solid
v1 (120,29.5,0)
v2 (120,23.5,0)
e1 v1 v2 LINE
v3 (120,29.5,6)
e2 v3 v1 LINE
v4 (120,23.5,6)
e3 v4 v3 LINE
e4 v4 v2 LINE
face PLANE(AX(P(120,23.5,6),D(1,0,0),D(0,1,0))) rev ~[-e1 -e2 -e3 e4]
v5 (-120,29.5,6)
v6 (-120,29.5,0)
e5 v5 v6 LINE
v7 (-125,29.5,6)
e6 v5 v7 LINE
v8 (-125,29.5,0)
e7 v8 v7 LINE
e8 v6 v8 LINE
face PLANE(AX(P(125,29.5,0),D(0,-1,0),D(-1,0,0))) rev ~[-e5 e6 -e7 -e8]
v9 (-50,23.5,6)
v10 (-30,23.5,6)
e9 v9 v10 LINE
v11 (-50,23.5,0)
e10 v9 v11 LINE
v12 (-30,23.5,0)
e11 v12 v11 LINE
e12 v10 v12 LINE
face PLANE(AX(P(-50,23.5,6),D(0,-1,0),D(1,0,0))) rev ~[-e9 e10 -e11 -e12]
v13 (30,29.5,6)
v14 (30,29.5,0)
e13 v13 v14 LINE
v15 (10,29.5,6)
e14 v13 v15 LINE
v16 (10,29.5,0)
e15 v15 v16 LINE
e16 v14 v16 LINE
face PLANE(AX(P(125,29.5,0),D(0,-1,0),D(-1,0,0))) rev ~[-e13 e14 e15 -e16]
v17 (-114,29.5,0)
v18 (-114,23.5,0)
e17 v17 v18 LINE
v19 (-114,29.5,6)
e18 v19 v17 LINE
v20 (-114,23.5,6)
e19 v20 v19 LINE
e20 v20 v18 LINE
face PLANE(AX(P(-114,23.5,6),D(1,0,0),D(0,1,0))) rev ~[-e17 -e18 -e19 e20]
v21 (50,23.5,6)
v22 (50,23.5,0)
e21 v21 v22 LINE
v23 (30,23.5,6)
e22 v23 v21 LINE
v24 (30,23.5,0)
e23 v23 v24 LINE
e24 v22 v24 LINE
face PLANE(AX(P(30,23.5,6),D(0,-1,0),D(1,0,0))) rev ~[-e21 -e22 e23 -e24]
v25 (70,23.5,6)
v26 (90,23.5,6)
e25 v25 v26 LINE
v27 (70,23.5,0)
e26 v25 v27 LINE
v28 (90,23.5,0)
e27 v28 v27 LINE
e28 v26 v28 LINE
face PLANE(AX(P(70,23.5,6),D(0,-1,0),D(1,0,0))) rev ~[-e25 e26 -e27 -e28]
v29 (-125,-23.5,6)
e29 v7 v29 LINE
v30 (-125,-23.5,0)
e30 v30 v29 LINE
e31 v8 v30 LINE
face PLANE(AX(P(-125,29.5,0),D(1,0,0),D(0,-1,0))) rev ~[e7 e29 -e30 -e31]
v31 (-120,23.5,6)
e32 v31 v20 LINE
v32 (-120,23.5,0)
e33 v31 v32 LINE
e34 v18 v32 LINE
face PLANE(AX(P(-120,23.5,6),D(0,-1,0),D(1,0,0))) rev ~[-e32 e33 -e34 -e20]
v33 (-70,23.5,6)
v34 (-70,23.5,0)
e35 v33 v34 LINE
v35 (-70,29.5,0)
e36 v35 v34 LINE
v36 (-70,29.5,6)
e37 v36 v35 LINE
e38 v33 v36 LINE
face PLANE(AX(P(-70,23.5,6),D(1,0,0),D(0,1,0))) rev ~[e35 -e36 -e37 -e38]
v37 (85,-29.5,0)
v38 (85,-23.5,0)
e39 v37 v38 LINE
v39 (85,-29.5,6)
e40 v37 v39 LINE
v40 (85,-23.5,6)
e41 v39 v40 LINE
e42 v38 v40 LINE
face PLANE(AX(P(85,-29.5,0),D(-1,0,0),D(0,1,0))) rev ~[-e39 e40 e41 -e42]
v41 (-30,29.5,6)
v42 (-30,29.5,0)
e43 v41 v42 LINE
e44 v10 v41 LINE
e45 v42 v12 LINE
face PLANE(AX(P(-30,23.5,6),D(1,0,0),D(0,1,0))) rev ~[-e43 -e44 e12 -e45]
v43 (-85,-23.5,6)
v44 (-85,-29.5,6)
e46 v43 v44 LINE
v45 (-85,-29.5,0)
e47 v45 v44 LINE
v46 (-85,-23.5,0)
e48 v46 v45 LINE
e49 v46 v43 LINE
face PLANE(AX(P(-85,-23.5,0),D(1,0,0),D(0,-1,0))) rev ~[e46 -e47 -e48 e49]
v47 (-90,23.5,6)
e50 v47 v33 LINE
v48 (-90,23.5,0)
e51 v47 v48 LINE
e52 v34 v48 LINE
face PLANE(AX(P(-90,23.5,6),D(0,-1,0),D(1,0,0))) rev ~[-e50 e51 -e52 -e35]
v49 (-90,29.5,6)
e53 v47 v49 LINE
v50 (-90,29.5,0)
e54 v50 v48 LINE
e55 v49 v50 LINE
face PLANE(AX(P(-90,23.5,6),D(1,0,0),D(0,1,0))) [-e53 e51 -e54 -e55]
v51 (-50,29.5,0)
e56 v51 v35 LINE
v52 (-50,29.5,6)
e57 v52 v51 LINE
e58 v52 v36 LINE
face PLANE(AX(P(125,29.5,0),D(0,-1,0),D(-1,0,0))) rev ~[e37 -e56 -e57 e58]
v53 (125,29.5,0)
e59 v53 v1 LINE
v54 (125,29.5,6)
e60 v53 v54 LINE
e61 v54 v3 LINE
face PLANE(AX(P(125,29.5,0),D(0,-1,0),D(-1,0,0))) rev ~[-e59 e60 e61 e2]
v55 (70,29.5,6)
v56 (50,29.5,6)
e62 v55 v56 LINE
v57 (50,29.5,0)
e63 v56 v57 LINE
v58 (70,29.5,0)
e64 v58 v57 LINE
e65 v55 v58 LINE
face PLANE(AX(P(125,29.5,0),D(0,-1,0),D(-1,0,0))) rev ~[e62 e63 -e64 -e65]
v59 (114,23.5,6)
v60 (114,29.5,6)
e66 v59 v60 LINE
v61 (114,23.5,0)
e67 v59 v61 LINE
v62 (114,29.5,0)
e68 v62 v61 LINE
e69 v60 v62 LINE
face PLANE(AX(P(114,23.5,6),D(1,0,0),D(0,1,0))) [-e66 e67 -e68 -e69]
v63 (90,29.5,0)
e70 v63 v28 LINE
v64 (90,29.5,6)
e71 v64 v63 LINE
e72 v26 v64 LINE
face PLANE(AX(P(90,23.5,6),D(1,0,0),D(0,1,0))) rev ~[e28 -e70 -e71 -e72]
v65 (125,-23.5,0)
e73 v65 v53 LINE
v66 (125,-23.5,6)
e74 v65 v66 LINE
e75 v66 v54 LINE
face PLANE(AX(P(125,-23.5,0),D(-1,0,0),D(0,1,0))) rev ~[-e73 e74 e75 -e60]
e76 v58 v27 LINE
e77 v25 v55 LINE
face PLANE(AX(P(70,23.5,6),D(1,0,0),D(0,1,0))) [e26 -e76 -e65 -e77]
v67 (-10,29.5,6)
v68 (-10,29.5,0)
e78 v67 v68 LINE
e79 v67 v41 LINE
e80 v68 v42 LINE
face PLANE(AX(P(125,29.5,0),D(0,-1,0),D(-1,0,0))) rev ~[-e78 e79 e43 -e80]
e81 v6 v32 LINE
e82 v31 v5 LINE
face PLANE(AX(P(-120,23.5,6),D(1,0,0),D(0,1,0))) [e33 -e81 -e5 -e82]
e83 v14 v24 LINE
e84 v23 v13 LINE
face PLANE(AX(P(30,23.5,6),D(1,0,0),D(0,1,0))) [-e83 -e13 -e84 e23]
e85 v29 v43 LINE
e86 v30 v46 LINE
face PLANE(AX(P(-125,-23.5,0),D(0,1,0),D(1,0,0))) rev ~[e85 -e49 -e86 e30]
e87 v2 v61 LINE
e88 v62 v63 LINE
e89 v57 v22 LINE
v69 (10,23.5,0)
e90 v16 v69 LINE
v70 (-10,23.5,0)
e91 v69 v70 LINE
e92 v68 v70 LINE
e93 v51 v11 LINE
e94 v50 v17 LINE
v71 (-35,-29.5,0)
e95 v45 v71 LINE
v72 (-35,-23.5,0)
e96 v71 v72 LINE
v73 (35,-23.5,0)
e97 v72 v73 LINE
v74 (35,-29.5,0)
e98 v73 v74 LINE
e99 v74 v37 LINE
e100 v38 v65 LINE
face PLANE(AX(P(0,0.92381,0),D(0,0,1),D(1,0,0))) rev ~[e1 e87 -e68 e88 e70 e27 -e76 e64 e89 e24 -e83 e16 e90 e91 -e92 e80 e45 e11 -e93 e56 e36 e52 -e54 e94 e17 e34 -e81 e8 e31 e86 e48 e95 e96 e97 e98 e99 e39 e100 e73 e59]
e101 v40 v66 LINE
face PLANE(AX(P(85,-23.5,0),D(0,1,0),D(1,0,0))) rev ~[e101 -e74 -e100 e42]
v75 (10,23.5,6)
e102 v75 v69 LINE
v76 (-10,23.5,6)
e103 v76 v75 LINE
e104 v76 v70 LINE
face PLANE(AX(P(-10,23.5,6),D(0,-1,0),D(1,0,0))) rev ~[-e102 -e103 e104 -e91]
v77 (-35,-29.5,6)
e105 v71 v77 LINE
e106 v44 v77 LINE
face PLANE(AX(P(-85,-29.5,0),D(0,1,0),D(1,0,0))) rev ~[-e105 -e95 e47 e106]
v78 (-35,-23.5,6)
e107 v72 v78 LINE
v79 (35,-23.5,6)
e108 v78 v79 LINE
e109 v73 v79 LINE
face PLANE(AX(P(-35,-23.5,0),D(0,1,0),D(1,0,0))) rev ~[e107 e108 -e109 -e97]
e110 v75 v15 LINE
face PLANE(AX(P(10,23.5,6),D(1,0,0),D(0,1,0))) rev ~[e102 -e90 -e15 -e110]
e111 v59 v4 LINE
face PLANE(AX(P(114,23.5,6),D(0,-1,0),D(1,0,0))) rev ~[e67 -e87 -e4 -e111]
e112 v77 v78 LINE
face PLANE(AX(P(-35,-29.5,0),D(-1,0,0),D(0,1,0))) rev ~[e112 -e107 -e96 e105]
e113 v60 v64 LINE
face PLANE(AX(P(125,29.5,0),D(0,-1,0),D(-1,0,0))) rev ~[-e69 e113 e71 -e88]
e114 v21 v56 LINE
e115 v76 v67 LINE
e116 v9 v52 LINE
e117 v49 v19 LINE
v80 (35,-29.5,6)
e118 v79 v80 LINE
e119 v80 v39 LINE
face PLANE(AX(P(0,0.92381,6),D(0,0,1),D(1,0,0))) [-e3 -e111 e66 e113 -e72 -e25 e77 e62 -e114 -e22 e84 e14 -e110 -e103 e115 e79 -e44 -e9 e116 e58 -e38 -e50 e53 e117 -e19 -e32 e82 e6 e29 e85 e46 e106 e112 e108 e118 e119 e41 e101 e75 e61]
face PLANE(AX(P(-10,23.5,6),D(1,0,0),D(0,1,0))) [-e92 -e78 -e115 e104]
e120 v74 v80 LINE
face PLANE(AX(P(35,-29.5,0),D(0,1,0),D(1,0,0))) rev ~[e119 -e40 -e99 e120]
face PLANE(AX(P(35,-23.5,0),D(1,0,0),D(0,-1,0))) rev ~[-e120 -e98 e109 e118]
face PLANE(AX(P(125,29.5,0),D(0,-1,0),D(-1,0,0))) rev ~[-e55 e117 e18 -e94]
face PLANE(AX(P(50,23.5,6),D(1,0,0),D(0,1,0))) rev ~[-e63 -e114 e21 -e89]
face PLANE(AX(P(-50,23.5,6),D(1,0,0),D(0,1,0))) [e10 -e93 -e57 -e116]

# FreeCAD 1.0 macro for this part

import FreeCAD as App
import Part
import Sketcher
from FreeCAD import Vector
Q = App.Units.Quantity

doc = App.newDocument("Part")
params = doc.addObject("Spreadsheet::Sheet", "Params")
for row, (alias, value) in enumerate([
    ("sketch1_width", "50 mm"),
    ("sketch1_width2", "70 mm"),
    ("sketch1_width3", "40 mm"),
    ("sketch1_height", "6 mm"),
    ("sketch1_height2", "53 mm"),
    ("pad1_length", "6 mm"),
    ("sketch2_width", "20 mm"),
    ("sketch2_height", "6 mm"),
    ("sketch3_width", "20 mm"),
    ("sketch3_height", "6 mm"),
    ("sketch4_width", "20 mm"),
    ("sketch4_height", "6 mm"),
    ("sketch5_width", "20 mm"),
    ("sketch5_height", "6 mm"),
    ("sketch6_width", "20 mm"),
    ("sketch6_height", "6 mm"),
    ("sketch7_width", "6 mm"),
    ("sketch8_width", "6 mm"),
], start=1):
    params.set(f"A{row}", alias)
    params.set(f"B{row}", "=" + value)
    params.setAlias(f"B{row}", alias)

body = doc.addObject("PartDesign::Body", "Body")

sketch1 = body.newObject("Sketcher::SketchObject", "Sketch")
sketch1.AttachmentSupport = (doc.getObject("XY_Plane"), [""])
sketch1.MapMode = "FlatFace"
sketch1.addGeometry([
    Part.LineSegment(Vector(-85, -24, 0), Vector(-85, -30, 0)),
    Part.LineSegment(Vector(-85, -30, 0), Vector(-35, -30, 0)),
    Part.LineSegment(Vector(-35, -30, 0), Vector(-35, -24, 0)),
    Part.LineSegment(Vector(-35, -24, 0), Vector(35, -24, 0)),
    Part.LineSegment(Vector(35, -24, 0), Vector(35, -30, 0)),
    Part.LineSegment(Vector(35, -30, 0), Vector(85, -30, 0)),
    Part.LineSegment(Vector(85, -30, 0), Vector(85, -24, 0)),
    Part.LineSegment(Vector(85, -24, 0), Vector(125, -24, 0)),
    Part.LineSegment(Vector(125, -24, 0), Vector(125, 30, 0)),
    Part.LineSegment(Vector(125, 30, 0), Vector(-125, 30, 0)),
    Part.LineSegment(Vector(-125, 30, 0), Vector(-125, -24, 0)),
    Part.LineSegment(Vector(-125, -24, 0), Vector(-85, -24, 0)),
], False)
sketch1.addConstraint([
    Sketcher.Constraint("Coincident", 0, 2, 1, 1),
    Sketcher.Constraint("Coincident", 1, 2, 2, 1),
    Sketcher.Constraint("Coincident", 2, 2, 3, 1),
    Sketcher.Constraint("Coincident", 3, 2, 4, 1),
    Sketcher.Constraint("Coincident", 4, 2, 5, 1),
    Sketcher.Constraint("Coincident", 5, 2, 6, 1),
    Sketcher.Constraint("Coincident", 6, 2, 7, 1),
    Sketcher.Constraint("Coincident", 7, 2, 8, 1),
    Sketcher.Constraint("Coincident", 8, 2, 9, 1),
    Sketcher.Constraint("Coincident", 9, 2, 10, 1),
    Sketcher.Constraint("Coincident", 10, 2, 11, 1),
    Sketcher.Constraint("Coincident", 11, 2, 0, 1),
    Sketcher.Constraint("Vertical", 0),
    Sketcher.Constraint("Horizontal", 1),
    Sketcher.Constraint("Vertical", 2),
    Sketcher.Constraint("Horizontal", 3),
    Sketcher.Constraint("Vertical", 4),
    Sketcher.Constraint("Horizontal", 5),
    Sketcher.Constraint("Vertical", 6),
    Sketcher.Constraint("Horizontal", 7),
    Sketcher.Constraint("Vertical", 8),
    Sketcher.Constraint("Horizontal", 9),
    Sketcher.Constraint("Vertical", 10),
    Sketcher.Constraint("Horizontal", 11),
    Sketcher.Constraint("Symmetric", 1, 2, 4, 2, -2),
    Sketcher.Constraint("Symmetric", 7, 2, 10, 2, -2),
    Sketcher.Constraint("Horizontal", 3, 2, 6, 2),
    Sketcher.Constraint("Equal", 1, 5),
    Sketcher.Constraint("DistanceX", 1, 1, 1, 2, Q("50 mm")),
    Sketcher.Constraint("DistanceX", 3, 1, 3, 2, Q("70 mm")),
    Sketcher.Constraint("DistanceX", 7, 1, 7, 2, Q("40 mm")),
    Sketcher.Constraint("DistanceY", 0, 2, 0, 1, Q("6 mm")),
    Sketcher.Constraint("DistanceY", 8, 1, 8, 2, Q("53 mm")),
    Sketcher.Constraint("DistanceY", 0, 2, -1, 1, Q("29.5 mm")),
])
sketch1.setExpression("Constraints[28]", "Params.sketch1_width")
sketch1.setExpression("Constraints[29]", "Params.sketch1_width2")
sketch1.setExpression("Constraints[30]", "Params.sketch1_width3")
sketch1.setExpression("Constraints[31]", "Params.sketch1_height")
sketch1.setExpression("Constraints[32]", "Params.sketch1_height2")
pad1 = body.newObject("PartDesign::Pad", "Pad")
pad1.Profile = sketch1
pad1.setExpression("Length", "Params.pad1_length")

sketch2 = body.newObject("Sketcher::SketchObject", "Sketch001")
sketch2.AttachmentSupport = (doc.getObject("XY_Plane"), [""])
sketch2.MapMode = "FlatFace"
sketch2.AttachmentOffset = App.Placement(Vector(0, 0, 6), App.Rotation())
sketch2.addGeometry([
    Part.LineSegment(Vector(-90, 30, 0), Vector(-90, 24, 0)),
    Part.LineSegment(Vector(-90, 24, 0), Vector(-70, 24, 0)),
    Part.LineSegment(Vector(-70, 24, 0), Vector(-70, 30, 0)),
    Part.LineSegment(Vector(-70, 30, 0), Vector(-90, 30, 0)),
], False)
sketch2.addConstraint([
    Sketcher.Constraint("Coincident", 0, 2, 1, 1),
    Sketcher.Constraint("Coincident", 1, 2, 2, 1),
    Sketcher.Constraint("Coincident", 2, 2, 3, 1),
    Sketcher.Constraint("Coincident", 3, 2, 0, 1),
    Sketcher.Constraint("Vertical", 0),
    Sketcher.Constraint("Horizontal", 1),
    Sketcher.Constraint("Vertical", 2),
    Sketcher.Constraint("Horizontal", 3),
    Sketcher.Constraint("DistanceX", 1, 1, 1, 2, Q("20 mm")),
    Sketcher.Constraint("DistanceY", 0, 2, 0, 1, Q("6 mm")),
    Sketcher.Constraint("DistanceX", 0, 2, -1, 1, Q("90 mm")),
    Sketcher.Constraint("DistanceY", -1, 1, 0, 2, Q("23.5 mm")),
])
sketch2.setExpression("Constraints[8]", "Params.sketch2_width")
sketch2.setExpression("Constraints[9]", "Params.sketch2_height")
pocket1 = body.newObject("PartDesign::Pocket", "Pocket")
pocket1.Profile = sketch2
pocket1.Type = "UpToFirst"

sketch3 = body.newObject("Sketcher::SketchObject", "Sketch002")
sketch3.AttachmentSupport = (doc.getObject("XY_Plane"), [""])
sketch3.MapMode = "FlatFace"
sketch3.AttachmentOffset = App.Placement(Vector(0, 0, 6), App.Rotation())
sketch3.addGeometry([
    Part.LineSegment(Vector(-50, 30, 0), Vector(-50, 24, 0)),
    Part.LineSegment(Vector(-50, 24, 0), Vector(-30, 24, 0)),
    Part.LineSegment(Vector(-30, 24, 0), Vector(-30, 30, 0)),
    Part.LineSegment(Vector(-30, 30, 0), Vector(-50, 30, 0)),
], False)
sketch3.addConstraint([
    Sketcher.Constraint("Coincident", 0, 2, 1, 1),
    Sketcher.Constraint("Coincident", 1, 2, 2, 1),
    Sketcher.Constraint("Coincident", 2, 2, 3, 1),
    Sketcher.Constraint("Coincident", 3, 2, 0, 1),
    Sketcher.Constraint("Vertical", 0),
    Sketcher.Constraint("Horizontal", 1),
    Sketcher.Constraint("Vertical", 2),
    Sketcher.Constraint("Horizontal", 3),
    Sketcher.Constraint("DistanceX", 1, 1, 1, 2, Q("20 mm")),
    Sketcher.Constraint("DistanceY", 0, 2, 0, 1, Q("6 mm")),
    Sketcher.Constraint("DistanceX", 0, 2, -1, 1, Q("50 mm")),
    Sketcher.Constraint("DistanceY", -1, 1, 0, 2, Q("23.5 mm")),
])
sketch3.setExpression("Constraints[8]", "Params.sketch3_width")
sketch3.setExpression("Constraints[9]", "Params.sketch3_height")
pocket2 = body.newObject("PartDesign::Pocket", "Pocket001")
pocket2.Profile = sketch3
pocket2.Type = "UpToFirst"

sketch4 = body.newObject("Sketcher::SketchObject", "Sketch003")
sketch4.AttachmentSupport = (doc.getObject("XY_Plane"), [""])
sketch4.MapMode = "FlatFace"
sketch4.AttachmentOffset = App.Placement(Vector(0, 0, 6), App.Rotation())
sketch4.addGeometry([
    Part.LineSegment(Vector(-10, 30, 0), Vector(-10, 24, 0)),
    Part.LineSegment(Vector(-10, 24, 0), Vector(10, 24, 0)),
    Part.LineSegment(Vector(10, 24, 0), Vector(10, 30, 0)),
    Part.LineSegment(Vector(10, 30, 0), Vector(-10, 30, 0)),
], False)
sketch4.addConstraint([
    Sketcher.Constraint("Coincident", 0, 2, 1, 1),
    Sketcher.Constraint("Coincident", 1, 2, 2, 1),
    Sketcher.Constraint("Coincident", 2, 2, 3, 1),
    Sketcher.Constraint("Coincident", 3, 2, 0, 1),
    Sketcher.Constraint("Vertical", 0),
    Sketcher.Constraint("Horizontal", 1),
    Sketcher.Constraint("Vertical", 2),
    Sketcher.Constraint("Horizontal", 3),
    Sketcher.Constraint("DistanceX", 1, 1, 1, 2, Q("20 mm")),
    Sketcher.Constraint("DistanceY", 0, 2, 0, 1, Q("6 mm")),
    Sketcher.Constraint("DistanceX", 0, 2, -1, 1, Q("10 mm")),
    Sketcher.Constraint("DistanceY", -1, 1, 0, 2, Q("23.5 mm")),
])
sketch4.setExpression("Constraints[8]", "Params.sketch4_width")
sketch4.setExpression("Constraints[9]", "Params.sketch4_height")
pocket3 = body.newObject("PartDesign::Pocket", "Pocket002")
pocket3.Profile = sketch4
pocket3.Type = "UpToFirst"

sketch5 = body.newObject("Sketcher::SketchObject", "Sketch004")
sketch5.AttachmentSupport = (doc.getObject("XY_Plane"), [""])
sketch5.MapMode = "FlatFace"
sketch5.AttachmentOffset = App.Placement(Vector(0, 0, 6), App.Rotation())
sketch5.addGeometry([
    Part.LineSegment(Vector(30, 30, 0), Vector(30, 24, 0)),
    Part.LineSegment(Vector(30, 24, 0), Vector(50, 24, 0)),
    Part.LineSegment(Vector(50, 24, 0), Vector(50, 30, 0)),
    Part.LineSegment(Vector(50, 30, 0), Vector(30, 30, 0)),
], False)
sketch5.addConstraint([
    Sketcher.Constraint("Coincident", 0, 2, 1, 1),
    Sketcher.Constraint("Coincident", 1, 2, 2, 1),
    Sketcher.Constraint("Coincident", 2, 2, 3, 1),
    Sketcher.Constraint("Coincident", 3, 2, 0, 1),
    Sketcher.Constraint("Vertical", 0),
    Sketcher.Constraint("Horizontal", 1),
    Sketcher.Constraint("Vertical", 2),
    Sketcher.Constraint("Horizontal", 3),
    Sketcher.Constraint("DistanceX", 1, 1, 1, 2, Q("20 mm")),
    Sketcher.Constraint("DistanceY", 0, 2, 0, 1, Q("6 mm")),
    Sketcher.Constraint("DistanceX", -1, 1, 0, 2, Q("30 mm")),
    Sketcher.Constraint("DistanceY", -1, 1, 0, 2, Q("23.5 mm")),
])
sketch5.setExpression("Constraints[8]", "Params.sketch5_width")
sketch5.setExpression("Constraints[9]", "Params.sketch5_height")
pocket4 = body.newObject("PartDesign::Pocket", "Pocket003")
pocket4.Profile = sketch5
pocket4.Type = "UpToFirst"

sketch6 = body.newObject("Sketcher::SketchObject", "Sketch005")
sketch6.AttachmentSupport = (doc.getObject("XY_Plane"), [""])
sketch6.MapMode = "FlatFace"
sketch6.AttachmentOffset = App.Placement(Vector(0, 0, 6), App.Rotation())
sketch6.addGeometry([
    Part.LineSegment(Vector(70, 30, 0), Vector(70, 24, 0)),
    Part.LineSegment(Vector(70, 24, 0), Vector(90, 24, 0)),
    Part.LineSegment(Vector(90, 24, 0), Vector(90, 30, 0)),
    Part.LineSegment(Vector(90, 30, 0), Vector(70, 30, 0)),
], False)
sketch6.addConstraint([
    Sketcher.Constraint("Coincident", 0, 2, 1, 1),
    Sketcher.Constraint("Coincident", 1, 2, 2, 1),
    Sketcher.Constraint("Coincident", 2, 2, 3, 1),
    Sketcher.Constraint("Coincident", 3, 2, 0, 1),
    Sketcher.Constraint("Vertical", 0),
    Sketcher.Constraint("Horizontal", 1),
    Sketcher.Constraint("Vertical", 2),
    Sketcher.Constraint("Horizontal", 3),
    Sketcher.Constraint("DistanceX", 1, 1, 1, 2, Q("20 mm")),
    Sketcher.Constraint("DistanceY", 0, 2, 0, 1, Q("6 mm")),
    Sketcher.Constraint("DistanceX", -1, 1, 0, 2, Q("70 mm")),
    Sketcher.Constraint("DistanceY", -1, 1, 0, 2, Q("23.5 mm")),
])
sketch6.setExpression("Constraints[8]", "Params.sketch6_width")
sketch6.setExpression("Constraints[9]", "Params.sketch6_height")
pocket5 = body.newObject("PartDesign::Pocket", "Pocket004")
pocket5.Profile = sketch6
pocket5.Type = "UpToFirst"

sketch7 = body.newObject("Sketcher::SketchObject", "Sketch006")
sketch7.AttachmentSupport = (doc.getObject("XY_Plane"), [""])
sketch7.MapMode = "FlatFace"
sketch7.AttachmentOffset = App.Placement(Vector(0, 0, 6), App.Rotation())
sketch7.addGeometry([
    Part.LineSegment(Vector(-120, 30, 0), Vector(-120, 24, 0)),
    Part.LineSegment(Vector(-120, 24, 0), Vector(-114, 24, 0)),
    Part.LineSegment(Vector(-114, 24, 0), Vector(-114, 30, 0)),
    Part.LineSegment(Vector(-114, 30, 0), Vector(-120, 30, 0)),
], False)
sketch7.addConstraint([
    Sketcher.Constraint("Coincident", 0, 2, 1, 1),
    Sketcher.Constraint("Coincident", 1, 2, 2, 1),
    Sketcher.Constraint("Coincident", 2, 2, 3, 1),
    Sketcher.Constraint("Coincident", 3, 2, 0, 1),
    Sketcher.Constraint("Vertical", 0),
    Sketcher.Constraint("Horizontal", 1),
    Sketcher.Constraint("Vertical", 2),
    Sketcher.Constraint("Horizontal", 3),
    Sketcher.Constraint("Equal", 3, 0),
    Sketcher.Constraint("DistanceX", 1, 1, 1, 2, Q("6 mm")),
    Sketcher.Constraint("DistanceX", 0, 2, -1, 1, Q("120 mm")),
    Sketcher.Constraint("DistanceY", -1, 1, 0, 2, Q("23.5 mm")),
])
sketch7.setExpression("Constraints[9]", "Params.sketch7_width")
pocket6 = body.newObject("PartDesign::Pocket", "Pocket005")
pocket6.Profile = sketch7
pocket6.Type = "UpToFirst"

sketch8 = body.newObject("Sketcher::SketchObject", "Sketch007")
sketch8.AttachmentSupport = (doc.getObject("XY_Plane"), [""])
sketch8.MapMode = "FlatFace"
sketch8.AttachmentOffset = App.Placement(Vector(0, 0, 6), App.Rotation())
sketch8.addGeometry([
    Part.LineSegment(Vector(114, 30, 0), Vector(114, 24, 0)),
    Part.LineSegment(Vector(114, 24, 0), Vector(120, 24, 0)),
    Part.LineSegment(Vector(120, 24, 0), Vector(120, 30, 0)),
    Part.LineSegment(Vector(120, 30, 0), Vector(114, 30, 0)),
], False)
sketch8.addConstraint([
    Sketcher.Constraint("Coincident", 0, 2, 1, 1),
    Sketcher.Constraint("Coincident", 1, 2, 2, 1),
    Sketcher.Constraint("Coincident", 2, 2, 3, 1),
    Sketcher.Constraint("Coincident", 3, 2, 0, 1),
    Sketcher.Constraint("Vertical", 0),
    Sketcher.Constraint("Horizontal", 1),
    Sketcher.Constraint("Vertical", 2),
    Sketcher.Constraint("Horizontal", 3),
    Sketcher.Constraint("Equal", 3, 0),
    Sketcher.Constraint("DistanceX", 1, 1, 1, 2, Q("6 mm")),
    Sketcher.Constraint("DistanceX", -1, 1, 0, 2, Q("114 mm")),
    Sketcher.Constraint("DistanceY", -1, 1, 0, 2, Q("23.5 mm")),
])
sketch8.setExpression("Constraints[9]", "Params.sketch8_width")
pocket7 = body.newObject("PartDesign::Pocket", "Pocket006")
pocket7.Profile = sketch8
pocket7.Type = "UpToFirst"

doc.recompute()
